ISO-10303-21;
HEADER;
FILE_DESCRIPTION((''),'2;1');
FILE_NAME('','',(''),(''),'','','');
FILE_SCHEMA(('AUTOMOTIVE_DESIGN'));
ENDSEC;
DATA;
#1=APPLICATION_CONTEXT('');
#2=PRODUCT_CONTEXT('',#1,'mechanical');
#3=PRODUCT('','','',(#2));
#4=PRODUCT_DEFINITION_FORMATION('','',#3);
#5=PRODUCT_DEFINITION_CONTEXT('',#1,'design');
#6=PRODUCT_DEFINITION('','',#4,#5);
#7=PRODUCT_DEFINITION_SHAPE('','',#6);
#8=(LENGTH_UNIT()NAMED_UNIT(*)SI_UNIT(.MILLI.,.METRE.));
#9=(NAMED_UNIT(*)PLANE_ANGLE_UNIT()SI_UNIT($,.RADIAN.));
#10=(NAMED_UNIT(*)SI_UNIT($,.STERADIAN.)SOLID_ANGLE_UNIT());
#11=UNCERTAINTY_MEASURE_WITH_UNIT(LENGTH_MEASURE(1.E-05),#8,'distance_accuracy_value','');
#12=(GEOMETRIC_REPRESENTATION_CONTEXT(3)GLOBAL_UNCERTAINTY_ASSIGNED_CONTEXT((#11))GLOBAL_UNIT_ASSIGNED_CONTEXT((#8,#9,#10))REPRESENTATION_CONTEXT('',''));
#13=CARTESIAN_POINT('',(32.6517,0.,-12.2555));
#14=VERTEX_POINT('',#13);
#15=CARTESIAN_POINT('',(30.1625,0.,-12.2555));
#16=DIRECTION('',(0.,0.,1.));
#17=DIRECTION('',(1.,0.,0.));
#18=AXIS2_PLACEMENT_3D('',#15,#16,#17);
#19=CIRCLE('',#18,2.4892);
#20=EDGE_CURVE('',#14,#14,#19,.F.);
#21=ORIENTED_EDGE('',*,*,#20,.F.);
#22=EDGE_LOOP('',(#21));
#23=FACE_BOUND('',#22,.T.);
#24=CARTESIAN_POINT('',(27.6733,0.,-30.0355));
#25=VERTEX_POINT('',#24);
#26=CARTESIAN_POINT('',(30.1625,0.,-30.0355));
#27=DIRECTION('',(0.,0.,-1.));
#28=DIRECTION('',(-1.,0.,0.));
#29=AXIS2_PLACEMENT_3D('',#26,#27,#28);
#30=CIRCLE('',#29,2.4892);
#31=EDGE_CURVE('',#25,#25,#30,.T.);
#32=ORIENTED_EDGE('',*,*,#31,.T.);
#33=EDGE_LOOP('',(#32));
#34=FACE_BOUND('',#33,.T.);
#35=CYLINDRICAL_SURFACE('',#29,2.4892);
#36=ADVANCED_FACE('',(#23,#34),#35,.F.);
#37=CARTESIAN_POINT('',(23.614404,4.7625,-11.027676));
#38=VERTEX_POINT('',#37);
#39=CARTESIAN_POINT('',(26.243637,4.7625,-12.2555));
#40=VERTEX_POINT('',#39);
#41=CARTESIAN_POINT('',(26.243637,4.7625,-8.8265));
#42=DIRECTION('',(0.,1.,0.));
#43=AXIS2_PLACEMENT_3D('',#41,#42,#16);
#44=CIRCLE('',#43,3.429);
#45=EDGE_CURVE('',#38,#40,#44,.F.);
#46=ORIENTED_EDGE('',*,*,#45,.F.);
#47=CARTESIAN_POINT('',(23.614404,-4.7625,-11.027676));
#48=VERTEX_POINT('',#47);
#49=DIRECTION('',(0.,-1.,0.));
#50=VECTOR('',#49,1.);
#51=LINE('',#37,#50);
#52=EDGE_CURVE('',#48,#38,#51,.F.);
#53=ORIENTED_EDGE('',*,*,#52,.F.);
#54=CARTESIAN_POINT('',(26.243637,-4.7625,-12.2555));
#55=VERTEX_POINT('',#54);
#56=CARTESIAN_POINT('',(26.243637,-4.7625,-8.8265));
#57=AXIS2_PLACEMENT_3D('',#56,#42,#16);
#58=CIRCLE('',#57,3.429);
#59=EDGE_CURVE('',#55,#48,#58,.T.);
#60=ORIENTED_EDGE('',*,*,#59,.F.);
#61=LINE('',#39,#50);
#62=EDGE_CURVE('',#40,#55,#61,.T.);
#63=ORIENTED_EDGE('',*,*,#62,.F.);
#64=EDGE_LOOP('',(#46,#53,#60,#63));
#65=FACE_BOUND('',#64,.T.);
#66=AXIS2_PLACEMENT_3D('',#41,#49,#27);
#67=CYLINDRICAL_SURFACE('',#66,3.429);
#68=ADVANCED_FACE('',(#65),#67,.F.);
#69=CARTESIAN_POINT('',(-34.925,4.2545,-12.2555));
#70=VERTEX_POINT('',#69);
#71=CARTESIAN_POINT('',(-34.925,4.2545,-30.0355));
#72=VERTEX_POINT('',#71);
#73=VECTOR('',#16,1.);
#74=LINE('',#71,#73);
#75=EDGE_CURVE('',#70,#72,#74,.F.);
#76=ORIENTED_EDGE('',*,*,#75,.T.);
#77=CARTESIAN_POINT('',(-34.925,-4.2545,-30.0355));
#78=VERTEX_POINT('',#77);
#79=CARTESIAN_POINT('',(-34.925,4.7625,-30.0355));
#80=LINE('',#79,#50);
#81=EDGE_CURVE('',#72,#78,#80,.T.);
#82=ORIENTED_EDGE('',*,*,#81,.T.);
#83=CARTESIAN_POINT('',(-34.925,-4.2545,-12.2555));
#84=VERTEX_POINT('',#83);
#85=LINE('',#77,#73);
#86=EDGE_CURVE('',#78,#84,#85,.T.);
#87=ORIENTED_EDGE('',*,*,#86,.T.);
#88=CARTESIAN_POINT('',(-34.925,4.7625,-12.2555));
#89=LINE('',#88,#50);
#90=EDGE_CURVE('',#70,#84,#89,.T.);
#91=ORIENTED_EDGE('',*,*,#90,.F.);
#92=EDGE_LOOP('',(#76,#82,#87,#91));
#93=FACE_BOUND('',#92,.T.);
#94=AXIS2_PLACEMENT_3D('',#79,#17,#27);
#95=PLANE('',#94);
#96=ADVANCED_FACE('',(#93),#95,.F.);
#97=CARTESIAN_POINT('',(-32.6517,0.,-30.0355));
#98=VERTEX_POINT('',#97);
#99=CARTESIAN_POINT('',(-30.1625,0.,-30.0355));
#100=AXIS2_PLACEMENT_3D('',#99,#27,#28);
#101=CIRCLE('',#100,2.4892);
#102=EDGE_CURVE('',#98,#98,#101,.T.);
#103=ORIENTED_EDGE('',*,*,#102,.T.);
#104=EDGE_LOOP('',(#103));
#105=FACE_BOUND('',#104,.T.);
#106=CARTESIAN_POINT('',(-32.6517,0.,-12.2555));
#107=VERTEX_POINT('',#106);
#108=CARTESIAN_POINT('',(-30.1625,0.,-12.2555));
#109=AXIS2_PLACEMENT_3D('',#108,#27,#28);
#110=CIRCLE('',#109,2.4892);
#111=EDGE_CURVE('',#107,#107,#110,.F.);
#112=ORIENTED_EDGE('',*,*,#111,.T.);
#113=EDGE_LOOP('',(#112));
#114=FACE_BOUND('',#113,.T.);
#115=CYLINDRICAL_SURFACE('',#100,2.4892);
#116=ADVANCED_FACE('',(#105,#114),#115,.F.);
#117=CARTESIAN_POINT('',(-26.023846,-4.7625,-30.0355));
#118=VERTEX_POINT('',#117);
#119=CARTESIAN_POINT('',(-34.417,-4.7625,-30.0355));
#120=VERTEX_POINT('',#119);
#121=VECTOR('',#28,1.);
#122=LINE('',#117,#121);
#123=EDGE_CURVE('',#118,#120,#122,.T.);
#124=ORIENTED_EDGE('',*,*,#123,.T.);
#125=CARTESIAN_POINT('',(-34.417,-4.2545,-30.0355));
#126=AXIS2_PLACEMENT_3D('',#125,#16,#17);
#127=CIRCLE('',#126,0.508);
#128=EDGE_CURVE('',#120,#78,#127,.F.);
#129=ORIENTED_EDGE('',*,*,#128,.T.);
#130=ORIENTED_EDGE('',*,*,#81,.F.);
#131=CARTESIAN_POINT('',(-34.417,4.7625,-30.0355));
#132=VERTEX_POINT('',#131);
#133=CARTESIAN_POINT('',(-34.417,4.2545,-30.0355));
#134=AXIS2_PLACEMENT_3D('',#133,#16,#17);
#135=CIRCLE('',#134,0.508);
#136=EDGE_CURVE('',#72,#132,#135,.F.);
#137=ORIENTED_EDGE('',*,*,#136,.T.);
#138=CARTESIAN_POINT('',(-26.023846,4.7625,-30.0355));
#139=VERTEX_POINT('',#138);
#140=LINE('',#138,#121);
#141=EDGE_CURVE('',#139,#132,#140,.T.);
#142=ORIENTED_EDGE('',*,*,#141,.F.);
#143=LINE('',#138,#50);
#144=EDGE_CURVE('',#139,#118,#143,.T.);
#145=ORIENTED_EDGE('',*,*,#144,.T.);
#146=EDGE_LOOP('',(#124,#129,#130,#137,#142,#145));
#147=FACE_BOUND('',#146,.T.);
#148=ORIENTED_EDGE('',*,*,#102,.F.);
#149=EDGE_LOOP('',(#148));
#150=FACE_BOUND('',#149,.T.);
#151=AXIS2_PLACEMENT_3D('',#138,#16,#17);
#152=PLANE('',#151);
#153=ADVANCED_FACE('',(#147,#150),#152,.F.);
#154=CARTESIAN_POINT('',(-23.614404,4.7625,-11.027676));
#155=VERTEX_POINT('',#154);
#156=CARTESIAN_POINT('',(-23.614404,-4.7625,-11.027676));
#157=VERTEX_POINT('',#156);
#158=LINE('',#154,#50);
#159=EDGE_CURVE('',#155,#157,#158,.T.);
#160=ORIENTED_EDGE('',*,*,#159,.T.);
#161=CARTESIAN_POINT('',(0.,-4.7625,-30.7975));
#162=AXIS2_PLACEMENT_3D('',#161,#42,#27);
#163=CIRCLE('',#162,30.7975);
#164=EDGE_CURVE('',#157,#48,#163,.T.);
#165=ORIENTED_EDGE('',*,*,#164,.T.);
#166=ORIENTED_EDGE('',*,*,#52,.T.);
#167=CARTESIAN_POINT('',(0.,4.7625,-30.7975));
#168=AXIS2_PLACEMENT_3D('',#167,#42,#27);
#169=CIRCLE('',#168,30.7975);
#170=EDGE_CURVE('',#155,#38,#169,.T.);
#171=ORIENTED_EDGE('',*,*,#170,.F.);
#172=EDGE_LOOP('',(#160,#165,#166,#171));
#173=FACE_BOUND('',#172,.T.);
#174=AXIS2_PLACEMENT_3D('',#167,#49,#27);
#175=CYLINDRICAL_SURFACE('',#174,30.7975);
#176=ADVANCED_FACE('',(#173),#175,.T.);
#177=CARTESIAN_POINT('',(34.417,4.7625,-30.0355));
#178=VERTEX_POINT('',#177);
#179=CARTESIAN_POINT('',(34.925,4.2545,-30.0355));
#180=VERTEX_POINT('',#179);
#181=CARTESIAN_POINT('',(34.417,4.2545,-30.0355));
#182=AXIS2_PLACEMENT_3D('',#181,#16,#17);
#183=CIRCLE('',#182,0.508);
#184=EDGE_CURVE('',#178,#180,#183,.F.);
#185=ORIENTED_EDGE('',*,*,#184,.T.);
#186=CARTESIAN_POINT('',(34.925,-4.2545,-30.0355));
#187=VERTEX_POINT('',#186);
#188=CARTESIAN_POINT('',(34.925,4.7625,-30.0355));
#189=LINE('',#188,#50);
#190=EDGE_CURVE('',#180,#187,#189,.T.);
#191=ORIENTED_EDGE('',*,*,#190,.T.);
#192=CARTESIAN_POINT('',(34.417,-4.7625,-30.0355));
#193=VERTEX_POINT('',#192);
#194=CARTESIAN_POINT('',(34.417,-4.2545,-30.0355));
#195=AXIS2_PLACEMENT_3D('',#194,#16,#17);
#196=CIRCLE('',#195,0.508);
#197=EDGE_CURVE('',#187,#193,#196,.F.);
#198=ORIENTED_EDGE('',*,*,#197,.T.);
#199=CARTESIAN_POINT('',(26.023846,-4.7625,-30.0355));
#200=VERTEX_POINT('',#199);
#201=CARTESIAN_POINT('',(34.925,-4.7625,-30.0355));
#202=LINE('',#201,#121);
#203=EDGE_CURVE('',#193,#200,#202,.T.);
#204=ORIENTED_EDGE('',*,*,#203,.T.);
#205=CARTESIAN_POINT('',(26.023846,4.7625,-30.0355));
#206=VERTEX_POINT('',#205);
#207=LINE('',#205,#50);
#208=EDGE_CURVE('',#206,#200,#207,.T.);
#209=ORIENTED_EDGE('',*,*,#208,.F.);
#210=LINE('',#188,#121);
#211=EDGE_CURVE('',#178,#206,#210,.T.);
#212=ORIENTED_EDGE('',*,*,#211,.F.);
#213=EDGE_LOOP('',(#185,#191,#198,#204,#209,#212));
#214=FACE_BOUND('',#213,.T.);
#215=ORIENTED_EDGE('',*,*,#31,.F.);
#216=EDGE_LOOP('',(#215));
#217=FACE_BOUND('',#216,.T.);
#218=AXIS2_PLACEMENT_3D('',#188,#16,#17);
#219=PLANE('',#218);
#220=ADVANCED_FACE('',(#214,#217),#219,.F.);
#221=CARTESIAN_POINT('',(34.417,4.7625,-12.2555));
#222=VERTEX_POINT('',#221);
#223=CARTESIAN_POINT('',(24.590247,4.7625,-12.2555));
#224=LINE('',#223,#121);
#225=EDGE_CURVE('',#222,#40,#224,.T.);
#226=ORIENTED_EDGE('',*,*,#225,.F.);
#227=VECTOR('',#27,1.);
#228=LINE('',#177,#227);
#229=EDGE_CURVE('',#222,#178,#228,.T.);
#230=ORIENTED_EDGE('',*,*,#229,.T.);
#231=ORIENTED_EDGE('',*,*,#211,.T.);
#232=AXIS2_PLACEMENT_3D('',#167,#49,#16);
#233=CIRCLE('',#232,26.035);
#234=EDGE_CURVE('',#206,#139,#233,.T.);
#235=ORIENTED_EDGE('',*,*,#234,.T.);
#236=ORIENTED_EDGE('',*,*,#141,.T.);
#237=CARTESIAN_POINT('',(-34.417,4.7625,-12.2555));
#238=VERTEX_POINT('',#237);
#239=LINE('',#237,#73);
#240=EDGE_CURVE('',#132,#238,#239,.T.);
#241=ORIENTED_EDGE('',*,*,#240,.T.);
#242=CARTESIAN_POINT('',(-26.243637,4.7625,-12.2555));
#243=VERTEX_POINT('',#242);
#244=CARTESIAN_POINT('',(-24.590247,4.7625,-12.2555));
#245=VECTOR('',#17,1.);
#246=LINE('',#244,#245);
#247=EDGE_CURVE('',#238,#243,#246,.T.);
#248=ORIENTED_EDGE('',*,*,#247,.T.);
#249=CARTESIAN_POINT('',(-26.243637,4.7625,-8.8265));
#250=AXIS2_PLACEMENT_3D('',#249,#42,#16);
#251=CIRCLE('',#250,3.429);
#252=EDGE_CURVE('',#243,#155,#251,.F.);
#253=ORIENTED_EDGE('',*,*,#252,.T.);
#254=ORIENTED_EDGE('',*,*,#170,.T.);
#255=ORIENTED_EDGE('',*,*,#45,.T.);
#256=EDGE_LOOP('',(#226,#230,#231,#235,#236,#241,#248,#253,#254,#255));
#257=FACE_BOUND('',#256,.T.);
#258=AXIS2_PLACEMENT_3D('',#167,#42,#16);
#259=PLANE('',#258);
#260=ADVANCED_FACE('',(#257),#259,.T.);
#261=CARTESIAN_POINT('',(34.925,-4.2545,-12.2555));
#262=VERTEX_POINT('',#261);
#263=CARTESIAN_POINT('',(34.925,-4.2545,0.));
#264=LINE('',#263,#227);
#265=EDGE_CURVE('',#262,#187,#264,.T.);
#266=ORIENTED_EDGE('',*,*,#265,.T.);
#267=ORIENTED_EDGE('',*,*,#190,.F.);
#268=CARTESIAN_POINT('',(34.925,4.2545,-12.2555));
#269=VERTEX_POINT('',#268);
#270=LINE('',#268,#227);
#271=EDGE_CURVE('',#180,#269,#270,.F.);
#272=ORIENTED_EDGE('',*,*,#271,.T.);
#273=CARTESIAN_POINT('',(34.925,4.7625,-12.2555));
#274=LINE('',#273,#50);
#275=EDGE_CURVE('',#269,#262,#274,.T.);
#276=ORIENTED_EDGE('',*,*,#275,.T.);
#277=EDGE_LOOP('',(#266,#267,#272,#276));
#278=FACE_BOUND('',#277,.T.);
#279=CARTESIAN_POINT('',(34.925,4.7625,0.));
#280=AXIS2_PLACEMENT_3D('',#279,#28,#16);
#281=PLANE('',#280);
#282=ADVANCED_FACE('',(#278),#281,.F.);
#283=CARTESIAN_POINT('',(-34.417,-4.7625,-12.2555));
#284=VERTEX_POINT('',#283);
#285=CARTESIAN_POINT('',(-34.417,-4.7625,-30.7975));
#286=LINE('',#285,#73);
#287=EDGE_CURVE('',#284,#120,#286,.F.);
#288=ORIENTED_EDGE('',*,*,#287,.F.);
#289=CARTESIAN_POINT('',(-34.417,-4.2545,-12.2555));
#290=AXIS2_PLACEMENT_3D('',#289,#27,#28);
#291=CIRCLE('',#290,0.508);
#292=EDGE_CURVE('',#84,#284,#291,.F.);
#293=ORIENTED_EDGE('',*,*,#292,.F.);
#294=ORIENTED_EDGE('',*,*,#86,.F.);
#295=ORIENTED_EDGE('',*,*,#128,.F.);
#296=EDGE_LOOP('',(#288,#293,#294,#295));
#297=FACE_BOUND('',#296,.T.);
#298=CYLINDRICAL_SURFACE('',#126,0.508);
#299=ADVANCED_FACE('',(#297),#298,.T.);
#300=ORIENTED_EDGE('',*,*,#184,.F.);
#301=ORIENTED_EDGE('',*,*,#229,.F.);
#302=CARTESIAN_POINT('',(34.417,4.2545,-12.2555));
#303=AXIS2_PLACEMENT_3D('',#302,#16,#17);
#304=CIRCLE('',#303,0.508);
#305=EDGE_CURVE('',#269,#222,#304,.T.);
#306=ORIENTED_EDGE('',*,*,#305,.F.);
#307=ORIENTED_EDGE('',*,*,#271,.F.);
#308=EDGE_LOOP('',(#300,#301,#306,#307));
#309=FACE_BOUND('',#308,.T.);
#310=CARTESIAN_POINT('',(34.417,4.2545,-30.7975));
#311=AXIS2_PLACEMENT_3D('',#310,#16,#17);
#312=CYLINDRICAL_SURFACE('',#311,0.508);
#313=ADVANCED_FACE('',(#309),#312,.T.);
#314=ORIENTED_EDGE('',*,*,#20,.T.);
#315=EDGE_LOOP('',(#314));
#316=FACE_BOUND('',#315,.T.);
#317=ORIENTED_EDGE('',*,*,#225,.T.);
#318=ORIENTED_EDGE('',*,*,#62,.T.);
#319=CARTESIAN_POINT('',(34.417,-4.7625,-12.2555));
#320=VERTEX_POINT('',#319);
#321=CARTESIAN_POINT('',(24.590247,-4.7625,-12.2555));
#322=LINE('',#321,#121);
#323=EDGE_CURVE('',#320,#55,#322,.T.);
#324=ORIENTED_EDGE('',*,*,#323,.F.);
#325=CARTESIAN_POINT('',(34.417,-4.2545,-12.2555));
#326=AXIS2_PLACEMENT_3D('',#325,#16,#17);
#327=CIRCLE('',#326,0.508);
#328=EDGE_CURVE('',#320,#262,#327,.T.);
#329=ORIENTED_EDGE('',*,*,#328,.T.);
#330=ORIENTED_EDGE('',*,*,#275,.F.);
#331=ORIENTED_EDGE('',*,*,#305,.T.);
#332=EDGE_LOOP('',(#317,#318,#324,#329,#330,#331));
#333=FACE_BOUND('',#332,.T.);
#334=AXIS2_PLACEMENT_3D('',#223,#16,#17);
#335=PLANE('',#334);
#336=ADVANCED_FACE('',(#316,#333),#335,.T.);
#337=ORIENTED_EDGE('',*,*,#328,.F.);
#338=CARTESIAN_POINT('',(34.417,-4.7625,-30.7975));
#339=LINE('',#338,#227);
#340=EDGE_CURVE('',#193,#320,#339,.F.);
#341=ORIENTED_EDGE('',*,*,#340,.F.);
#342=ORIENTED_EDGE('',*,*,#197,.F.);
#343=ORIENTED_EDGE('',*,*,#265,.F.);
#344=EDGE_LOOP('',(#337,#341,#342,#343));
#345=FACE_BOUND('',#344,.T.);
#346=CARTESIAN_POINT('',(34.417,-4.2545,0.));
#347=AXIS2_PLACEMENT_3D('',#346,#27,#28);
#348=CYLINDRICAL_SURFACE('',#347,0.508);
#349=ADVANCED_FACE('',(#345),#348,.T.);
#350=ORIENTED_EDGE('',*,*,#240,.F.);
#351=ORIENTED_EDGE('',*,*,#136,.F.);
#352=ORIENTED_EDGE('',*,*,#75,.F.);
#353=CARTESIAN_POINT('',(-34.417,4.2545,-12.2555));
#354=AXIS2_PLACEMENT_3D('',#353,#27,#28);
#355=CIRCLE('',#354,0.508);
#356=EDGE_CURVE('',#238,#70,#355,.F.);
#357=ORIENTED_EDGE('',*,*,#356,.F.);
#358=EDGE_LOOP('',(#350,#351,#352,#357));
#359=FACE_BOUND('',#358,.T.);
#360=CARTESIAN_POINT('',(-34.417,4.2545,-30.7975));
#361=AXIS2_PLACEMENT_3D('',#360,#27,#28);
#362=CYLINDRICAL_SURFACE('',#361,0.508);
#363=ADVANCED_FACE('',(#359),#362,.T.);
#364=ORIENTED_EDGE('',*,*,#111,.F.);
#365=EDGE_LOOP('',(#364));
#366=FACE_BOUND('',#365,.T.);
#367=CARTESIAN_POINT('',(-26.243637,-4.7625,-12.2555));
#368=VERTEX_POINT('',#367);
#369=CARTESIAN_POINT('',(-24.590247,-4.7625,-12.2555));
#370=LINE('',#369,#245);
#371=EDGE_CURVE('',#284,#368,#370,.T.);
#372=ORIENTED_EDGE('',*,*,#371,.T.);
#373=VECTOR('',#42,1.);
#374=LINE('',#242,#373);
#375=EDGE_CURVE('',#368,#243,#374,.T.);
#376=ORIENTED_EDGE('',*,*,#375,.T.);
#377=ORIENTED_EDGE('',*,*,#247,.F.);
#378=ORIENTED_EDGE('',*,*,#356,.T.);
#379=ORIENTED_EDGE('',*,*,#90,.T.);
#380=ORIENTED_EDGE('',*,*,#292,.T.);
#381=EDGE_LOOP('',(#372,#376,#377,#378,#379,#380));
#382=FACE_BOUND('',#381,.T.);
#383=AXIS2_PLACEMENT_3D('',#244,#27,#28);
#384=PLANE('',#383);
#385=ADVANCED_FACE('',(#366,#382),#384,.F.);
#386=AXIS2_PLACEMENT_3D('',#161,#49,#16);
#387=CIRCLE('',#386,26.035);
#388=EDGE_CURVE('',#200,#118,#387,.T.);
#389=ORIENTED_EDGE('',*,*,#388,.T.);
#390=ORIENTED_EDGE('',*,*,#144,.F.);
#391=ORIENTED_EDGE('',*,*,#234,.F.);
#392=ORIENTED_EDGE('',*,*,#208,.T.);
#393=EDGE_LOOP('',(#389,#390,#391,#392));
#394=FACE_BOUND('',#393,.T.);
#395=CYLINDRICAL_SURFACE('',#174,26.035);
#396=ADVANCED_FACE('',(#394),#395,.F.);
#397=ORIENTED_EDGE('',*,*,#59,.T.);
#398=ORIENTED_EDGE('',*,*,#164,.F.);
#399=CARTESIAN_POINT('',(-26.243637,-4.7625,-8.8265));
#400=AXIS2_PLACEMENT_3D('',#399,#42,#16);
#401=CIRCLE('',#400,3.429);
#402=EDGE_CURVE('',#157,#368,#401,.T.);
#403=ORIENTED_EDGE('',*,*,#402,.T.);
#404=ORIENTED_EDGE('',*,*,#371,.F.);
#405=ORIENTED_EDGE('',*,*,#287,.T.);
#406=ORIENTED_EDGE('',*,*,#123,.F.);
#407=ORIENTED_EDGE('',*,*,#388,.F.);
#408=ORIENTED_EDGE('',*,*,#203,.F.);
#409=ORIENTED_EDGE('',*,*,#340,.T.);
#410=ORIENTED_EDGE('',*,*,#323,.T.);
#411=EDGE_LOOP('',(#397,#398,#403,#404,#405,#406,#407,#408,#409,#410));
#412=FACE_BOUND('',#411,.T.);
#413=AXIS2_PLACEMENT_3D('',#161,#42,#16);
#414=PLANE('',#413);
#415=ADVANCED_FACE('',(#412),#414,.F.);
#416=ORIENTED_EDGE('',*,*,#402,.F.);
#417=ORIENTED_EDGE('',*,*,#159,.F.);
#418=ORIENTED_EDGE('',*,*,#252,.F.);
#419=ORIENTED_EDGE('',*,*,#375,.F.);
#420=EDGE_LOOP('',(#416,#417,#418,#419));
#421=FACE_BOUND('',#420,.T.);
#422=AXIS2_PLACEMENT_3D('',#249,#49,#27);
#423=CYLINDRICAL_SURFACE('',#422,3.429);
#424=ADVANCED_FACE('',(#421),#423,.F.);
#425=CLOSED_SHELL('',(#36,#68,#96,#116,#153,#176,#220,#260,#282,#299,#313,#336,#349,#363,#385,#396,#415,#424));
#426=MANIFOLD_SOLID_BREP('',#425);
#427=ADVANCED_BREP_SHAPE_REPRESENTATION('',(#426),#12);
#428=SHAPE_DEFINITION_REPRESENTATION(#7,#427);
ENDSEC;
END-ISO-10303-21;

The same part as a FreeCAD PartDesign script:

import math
import FreeCAD as App
import Part
import Sketcher
Q = App.Units.Quantity


def edges_at(feature, points):
    """Names of the edges that pass closest to the given points."""
    edges = feature.Shape.Edges
    near = lambda p: min(range(len(edges)), key=lambda i: edges[i].distToShape(Part.Vertex(*p))[0])
    return sorted({f"Edge{near(p) + 1}" for p in points})

doc = App.newDocument("Part")
body = doc.addObject("PartDesign::Body", "Body")

sketch1 = body.newObject("Sketcher::SketchObject", "Sketch")
sketch1.AttachmentSupport = (doc.getObject("XZ_Plane"), [""])
sketch1.MapMode = "FlatFace"
sketch1.addGeometry(Part.LineSegment(App.Vector(-26, -30, 0), App.Vector(-35, -30, 0)), False)
sketch1.addGeometry(Part.LineSegment(App.Vector(-35, -30, 0), App.Vector(-35, 0, 0)), False)
sketch1.addGeometry(Part.LineSegment(App.Vector(-35, 0, 0), App.Vector(35, 0, 0)), False)
sketch1.addGeometry(Part.LineSegment(App.Vector(35, 0, 0), App.Vector(35, -30, 0)), False)
sketch1.addGeometry(Part.LineSegment(App.Vector(35, -30, 0), App.Vector(26, -30, 0)), False)
sketch1.addGeometry(Part.ArcOfCircle(Part.Circle(App.Vector(0, -31, 0), App.Vector(0, 0, 1), 26), math.radians(2), math.radians(178)), False)
sketch1.addConstraint(Sketcher.Constraint("Coincident", 0, 2, 1, 1))
sketch1.addConstraint(Sketcher.Constraint("Coincident", 1, 2, 2, 1))
sketch1.addConstraint(Sketcher.Constraint("Coincident", 2, 2, 3, 1))
sketch1.addConstraint(Sketcher.Constraint("Coincident", 3, 2, 4, 1))
sketch1.addConstraint(Sketcher.Constraint("Coincident", 4, 2, 5, 1))
sketch1.addConstraint(Sketcher.Constraint("Coincident", 5, 2, 0, 1))
sketch1.addConstraint(Sketcher.Constraint("Horizontal", 0))
sketch1.addConstraint(Sketcher.Constraint("Vertical", 1))
sketch1.addConstraint(Sketcher.Constraint("Horizontal", 2))
sketch1.addConstraint(Sketcher.Constraint("Vertical", 3))
sketch1.addConstraint(Sketcher.Constraint("Horizontal", 4))
sketch1.addConstraint(Sketcher.Constraint("Symmetric", 1, 2, 2, 2, -1, 1))
sketch1.addConstraint(Sketcher.Constraint("Symmetric", 4, 2, 5, 2, -2))
sketch1.addConstraint(Sketcher.Constraint("Radius", 5, Q("1.025 in")))
sketch1.addConstraint(Sketcher.Constraint("DistanceX", 2, 1, 2, 2, Q("2.75 in")))
sketch1.addConstraint(Sketcher.Constraint("DistanceY", 5, 3, 0, 2, Q("0.03 in")))
sketch1.addConstraint(Sketcher.Constraint("DistanceY", 1, 1, 1, 2, Q("1.1825 in")))
pad1 = body.newObject("PartDesign::Pad", "Pad")
pad1.Profile = sketch1
pad1.Length = Q("0.375 in")
pad1.Midplane = True

sketch2 = body.newObject("Sketcher::SketchObject", "Sketch001")
sketch2.AttachmentSupport = (doc.getObject("XY_Plane"), [""])
sketch2.MapMode = "FlatFace"
sketch2.AttachmentOffset = App.Placement(App.Vector(0, 0, -1.1825 * 25.4), App.Rotation())
sketch2.addGeometry(Part.Circle(App.Vector(30.2, 0, 0), App.Vector(0, 0, 1), 2.5), False)
sketch2.addGeometry(Part.Circle(App.Vector(-30.2, 0, 0), App.Vector(0, 0, 1), 2.5), False)
sketch2.addConstraint(Sketcher.Constraint("Equal", 0, 1))
sketch2.addConstraint(Sketcher.Constraint("Symmetric", 0, 3, 1, 3, -1, 1))
sketch2.addConstraint(Sketcher.Constraint("PointOnObject", 0, 3, -1))
sketch2.addConstraint(Sketcher.Constraint("Diameter", 0, Q("0.196 in")))
sketch2.addConstraint(Sketcher.Constraint("DistanceX", -1, 1, 0, 3, Q("1.1875 in")))
doc.recompute()
hole = body.newObject("PartDesign::Hole", "Hole")
hole.Profile = sketch2
hole.ThreadType = "None"
hole.Diameter = Q("0.196 in")
hole.DepthType = "ThroughAll"
hole.Reversed = True

sketch3 = body.newObject("Sketcher::SketchObject", "Sketch002")
sketch3.AttachmentSupport = (doc.getObject("XZ_Plane"), [""])
sketch3.MapMode = "FlatFace"
sketch3.AttachmentOffset = App.Placement(App.Vector(0, 0, 0.1875 * 25.4), App.Rotation())
sketch3.addGeometry(Part.LineSegment(App.Vector(-35, -12, 0), App.Vector(-25, -12, 0)), False)
sketch3.addGeometry(Part.ArcOfCircle(Part.Circle(App.Vector(0, -31, 0), App.Vector(0, 0, 1), 31), math.radians(90), math.radians(143)), False)
sketch3.addGeometry(Part.LineSegment(App.Vector(0, 0, 0), App.Vector(-35, 0, 0)), False)
sketch3.addGeometry(Part.LineSegment(App.Vector(-35, 0, 0), App.Vector(-35, -12, 0)), False)
sketch3.addConstraint(Sketcher.Constraint("Coincident", 0, 2, 1, 2))
sketch3.addConstraint(Sketcher.Constraint("Tangent", 1, 1, 2, 1))
sketch3.addConstraint(Sketcher.Constraint("Coincident", 2, 2, 3, 1))
sketch3.addConstraint(Sketcher.Constraint("Coincident", 3, 2, 0, 1))
sketch3.addConstraint(Sketcher.Constraint("Horizontal", 0))
sketch3.addConstraint(Sketcher.Constraint("Horizontal", 2))
sketch3.addConstraint(Sketcher.Constraint("Vertical", 3))
sketch3.addConstraint(Sketcher.Constraint("Coincident", 1, 1, -1, 1))
sketch3.addConstraint(Sketcher.Constraint("Radius", 1, Q("1.2125 in")))
sketch3.addConstraint(Sketcher.Constraint("DistanceX", 2, 2, 2, 1, Q("1.375 in")))
sketch3.addConstraint(Sketcher.Constraint("DistanceY", 1, 3, 0, 2, Q("0.73 in")))
pocket1 = body.newObject("PartDesign::Pocket", "Pocket")
pocket1.Profile = sketch3
pocket1.Type = "ThroughAll"
doc.recompute()

mirrored = body.newObject("PartDesign::Mirrored", "Mirrored")
mirrored.Originals = [pocket1]
mirrored.MirrorPlane = (doc.getObject("YZ_Plane"), [""])
body.Tip = mirrored
doc.recompute()

fillet = body.newObject("PartDesign::Fillet", "Fillet")
fillet.Base = (mirrored, edges_at(mirrored, [(-24.59, 0, -12.255), (24.59, 0, -12.255)]))
fillet.Radius = Q("0.135 in")
doc.recompute()

fillet2 = body.newObject("PartDesign::Fillet", "Fillet001")
fillet2.Base = (fillet, edges_at(fillet, [
    (-34.925, 4.763, -21.145),
    (34.925, -4.763, -21.145),
    (34.925, 4.763, -21.145),
    (-34.925, -4.763, -21.145),
]))
fillet2.Radius = Q("0.02 in")

doc.recompute()
